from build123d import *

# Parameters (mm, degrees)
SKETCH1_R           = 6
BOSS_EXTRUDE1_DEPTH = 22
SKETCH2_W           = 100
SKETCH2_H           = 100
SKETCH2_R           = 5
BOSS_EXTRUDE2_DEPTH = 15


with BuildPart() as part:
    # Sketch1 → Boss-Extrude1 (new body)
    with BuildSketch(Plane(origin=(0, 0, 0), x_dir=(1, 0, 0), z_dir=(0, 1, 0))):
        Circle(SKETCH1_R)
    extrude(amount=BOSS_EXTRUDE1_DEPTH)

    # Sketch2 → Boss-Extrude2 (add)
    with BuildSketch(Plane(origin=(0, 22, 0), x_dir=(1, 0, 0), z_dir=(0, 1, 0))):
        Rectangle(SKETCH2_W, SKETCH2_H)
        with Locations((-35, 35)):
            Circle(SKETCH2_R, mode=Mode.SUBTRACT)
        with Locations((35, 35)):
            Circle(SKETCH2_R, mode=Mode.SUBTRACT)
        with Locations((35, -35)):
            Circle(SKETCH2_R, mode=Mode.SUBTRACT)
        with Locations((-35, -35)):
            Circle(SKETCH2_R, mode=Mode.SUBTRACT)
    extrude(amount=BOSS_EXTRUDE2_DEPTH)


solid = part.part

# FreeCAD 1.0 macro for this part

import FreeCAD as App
import Part
import Sketcher

V = App.Vector
Q = App.Units.Quantity


def add_polygon(sketch, points):
    """Adds a closed chain of lines whose ends are joined by coincident constraints."""
    first, n = sketch.GeometryCount, len(points)
    for a, b in zip(points, points[1:] + points[:1]):
        sketch.addGeometry(Part.LineSegment(App.Vector(*a, 0), App.Vector(*b, 0)), False)
    for i in range(n):
        sketch.addConstraint(Sketcher.Constraint("Coincident", first + i, 2, first + (i + 1) % n, 1))

doc = App.newDocument("Part")
body = doc.addObject("PartDesign::Body", "Body")

# Sketch on XZ plane
sketch1 = doc.addObject("Sketcher::SketchObject", "Sketch")
body.addObject(sketch1)
sketch1.AttachmentSupport = (doc.XZ_Plane, [""])
sketch1.MapMode = "FlatFace"
sketch1.addGeometry(Part.Circle(V(0, 0, 0), V(0, 0, 1), 6), False)
sketch1.addConstraint([
    Sketcher.Constraint("Coincident", 0, 3, -1, 1),
    Sketcher.Constraint("Diameter", 0, Q("12 mm")),
])
pad1 = doc.addObject("PartDesign::Pad", "Pad")
body.addObject(pad1)
pad1.Profile = sketch1
pad1.Length = 22
pad1.Reversed = True

# Sketch on XZ plane
sketch2 = doc.addObject("Sketcher::SketchObject", "Sketch001")
body.addObject(sketch2)
sketch2.AttachmentSupport = (doc.XZ_Plane, [""])
sketch2.MapMode = "FlatFace"
sketch2.AttachmentOffset = App.Placement(V(0, 0, -22), App.Rotation())
add_polygon(sketch2, [(-50, -50), (-50, 50), (50, 50), (50, -50)])  # lines 0-3
sketch2.addGeometry(Part.Circle(V(-35, 35, 0), V(0, 0, 1), 5), False)  # 4
sketch2.addGeometry(Part.Circle(V(35, 35, 0), V(0, 0, 1), 5), False)  # 5
sketch2.addGeometry(Part.Circle(V(-35, -35, 0), V(0, 0, 1), 5), False)  # 6
sketch2.addGeometry(Part.Circle(V(35, -35, 0), V(0, 0, 1), 5), False)  # 7
sketch2.addConstraint([
    Sketcher.Constraint("Vertical", 0),
    Sketcher.Constraint("Horizontal", 1),
    Sketcher.Constraint("Vertical", 2),
    Sketcher.Constraint("Horizontal", 3),
    Sketcher.Constraint("Equal", 4, 5),
    Sketcher.Constraint("Equal", 5, 6),
    Sketcher.Constraint("Equal", 6, 7),
    Sketcher.Constraint("Symmetric", 5, 3, 6, 3, -1, 1),
    Sketcher.Constraint("Symmetric", 4, 3, 7, 3, -1, 1),
    Sketcher.Constraint("Symmetric", 0, 2, 2, 2, -1, 1),
    Sketcher.Constraint("Symmetric", 4, 3, 5, 3, -2),
    Sketcher.Constraint("Equal", 3, 0),
    Sketcher.Constraint("Diameter", 4, Q("10 mm")),
    Sketcher.Constraint("DistanceX", 1, 1, 1, 2, Q("100 mm")),
    Sketcher.Constraint("DistanceX", 4, 3, -1, 1, Q("35 mm")),
    Sketcher.Constraint("DistanceY", -1, 1, 4, 3, Q("35 mm")),
])
pad2 = doc.addObject("PartDesign::Pad", "Pad001")
body.addObject(pad2)
pad2.Profile = sketch2
pad2.Length = 15
pad2.Reversed = True

doc.recompute()
